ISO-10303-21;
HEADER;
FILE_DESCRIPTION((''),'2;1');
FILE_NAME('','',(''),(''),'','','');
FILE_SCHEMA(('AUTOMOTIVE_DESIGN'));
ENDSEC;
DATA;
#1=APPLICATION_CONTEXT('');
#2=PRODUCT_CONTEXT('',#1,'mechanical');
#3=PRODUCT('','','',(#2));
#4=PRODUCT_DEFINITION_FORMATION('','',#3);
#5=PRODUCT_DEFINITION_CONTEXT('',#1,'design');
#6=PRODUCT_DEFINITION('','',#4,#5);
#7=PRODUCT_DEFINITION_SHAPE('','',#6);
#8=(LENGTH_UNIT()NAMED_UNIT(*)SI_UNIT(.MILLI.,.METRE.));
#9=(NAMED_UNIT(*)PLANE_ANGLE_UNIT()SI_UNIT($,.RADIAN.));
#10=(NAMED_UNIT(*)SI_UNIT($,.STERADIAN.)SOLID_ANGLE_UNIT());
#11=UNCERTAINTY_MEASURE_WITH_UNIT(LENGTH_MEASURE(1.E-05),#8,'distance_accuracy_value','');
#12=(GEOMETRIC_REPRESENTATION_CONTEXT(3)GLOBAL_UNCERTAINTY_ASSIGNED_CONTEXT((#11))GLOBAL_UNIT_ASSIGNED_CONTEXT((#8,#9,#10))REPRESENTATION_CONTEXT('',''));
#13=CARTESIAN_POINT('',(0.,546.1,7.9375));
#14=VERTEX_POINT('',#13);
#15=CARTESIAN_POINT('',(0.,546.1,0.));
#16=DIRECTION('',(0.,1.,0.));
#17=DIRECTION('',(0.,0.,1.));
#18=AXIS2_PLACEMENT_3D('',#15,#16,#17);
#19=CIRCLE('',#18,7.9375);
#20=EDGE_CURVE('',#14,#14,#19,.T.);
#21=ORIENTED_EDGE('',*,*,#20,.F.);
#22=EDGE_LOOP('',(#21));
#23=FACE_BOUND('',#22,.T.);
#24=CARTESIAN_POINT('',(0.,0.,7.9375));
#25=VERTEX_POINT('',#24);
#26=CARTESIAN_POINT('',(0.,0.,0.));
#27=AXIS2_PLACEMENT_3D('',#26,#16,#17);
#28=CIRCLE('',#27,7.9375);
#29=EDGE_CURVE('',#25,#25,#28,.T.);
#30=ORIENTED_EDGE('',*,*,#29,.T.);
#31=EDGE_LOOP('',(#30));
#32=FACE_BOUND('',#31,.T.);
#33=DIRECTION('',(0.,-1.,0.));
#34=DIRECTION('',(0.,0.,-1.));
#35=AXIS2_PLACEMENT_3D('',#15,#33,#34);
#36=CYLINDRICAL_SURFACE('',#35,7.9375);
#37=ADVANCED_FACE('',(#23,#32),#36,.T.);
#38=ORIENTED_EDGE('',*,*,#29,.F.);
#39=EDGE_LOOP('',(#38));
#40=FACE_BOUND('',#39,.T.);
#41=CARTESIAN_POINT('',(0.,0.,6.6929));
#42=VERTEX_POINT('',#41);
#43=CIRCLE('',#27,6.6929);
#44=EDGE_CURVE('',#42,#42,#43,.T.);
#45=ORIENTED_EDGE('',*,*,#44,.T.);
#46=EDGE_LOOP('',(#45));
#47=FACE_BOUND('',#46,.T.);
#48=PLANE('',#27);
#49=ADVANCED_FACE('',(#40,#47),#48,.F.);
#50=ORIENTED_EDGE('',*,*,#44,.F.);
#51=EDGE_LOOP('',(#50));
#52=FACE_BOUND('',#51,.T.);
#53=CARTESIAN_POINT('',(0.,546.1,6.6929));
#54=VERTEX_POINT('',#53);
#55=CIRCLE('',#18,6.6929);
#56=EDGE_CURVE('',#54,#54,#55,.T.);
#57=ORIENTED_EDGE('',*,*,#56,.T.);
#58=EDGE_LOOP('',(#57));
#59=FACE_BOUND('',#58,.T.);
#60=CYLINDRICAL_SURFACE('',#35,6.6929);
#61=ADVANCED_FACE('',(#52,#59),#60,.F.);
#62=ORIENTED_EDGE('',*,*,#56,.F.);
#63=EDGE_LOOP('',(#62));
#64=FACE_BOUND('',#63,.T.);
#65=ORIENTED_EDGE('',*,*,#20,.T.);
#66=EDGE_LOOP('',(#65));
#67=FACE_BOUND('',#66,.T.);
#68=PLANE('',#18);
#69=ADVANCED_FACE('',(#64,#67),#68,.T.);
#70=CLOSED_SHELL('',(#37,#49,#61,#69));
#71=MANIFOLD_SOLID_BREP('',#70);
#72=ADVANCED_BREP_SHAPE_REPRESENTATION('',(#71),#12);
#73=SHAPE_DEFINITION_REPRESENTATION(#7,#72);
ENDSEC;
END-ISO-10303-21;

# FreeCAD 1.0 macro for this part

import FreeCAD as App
import Part
import Sketcher
from FreeCAD import Vector
Q = App.Units.Quantity

doc = App.newDocument("Part")
params = doc.addObject("Spreadsheet::Sheet", "Params")
for row, (alias, value) in enumerate([
    ("sketch1_diameter", "0.625 in"),
    ("sketch1_diameter2", "0.527 in"),
    ("pad1_length", "21.5 in"),
], start=1):
    params.set(f"A{row}", alias)
    params.set(f"B{row}", "=" + value)
    params.setAlias(f"B{row}", alias)

body = doc.addObject("PartDesign::Body", "Body")

# Sketch on XZ plane
sketch1 = body.newObject("Sketcher::SketchObject", "Sketch")
sketch1.AttachmentSupport = (doc.getObject("XZ_Plane"), [""])
sketch1.MapMode = "FlatFace"
sketch1.addGeometry(Part.Circle(Vector(0, 0, 0), Vector(0, 0, 1), 8), False)
sketch1.addGeometry(Part.Circle(Vector(0, 0, 0), Vector(0, 0, 1), 7), False)
sketch1.addConstraint(Sketcher.Constraint("Coincident", 0, 3, -1, 1))
sketch1.addConstraint(Sketcher.Constraint("Coincident", 1, 3, -1, 1))
sketch1.addConstraint(Sketcher.Constraint("Diameter", 0, Q("0.625 in")))
sketch1.addConstraint(Sketcher.Constraint("Diameter", 1, Q("0.527 in")))
sketch1.setExpression("Constraints[2]", "Params.sketch1_diameter")
sketch1.setExpression("Constraints[3]", "Params.sketch1_diameter2")
pad1 = body.newObject("PartDesign::Pad", "Pad")
pad1.Profile = sketch1
pad1.setExpression("Length", "Params.pad1_length")
pad1.Reversed = True

doc.recompute()
